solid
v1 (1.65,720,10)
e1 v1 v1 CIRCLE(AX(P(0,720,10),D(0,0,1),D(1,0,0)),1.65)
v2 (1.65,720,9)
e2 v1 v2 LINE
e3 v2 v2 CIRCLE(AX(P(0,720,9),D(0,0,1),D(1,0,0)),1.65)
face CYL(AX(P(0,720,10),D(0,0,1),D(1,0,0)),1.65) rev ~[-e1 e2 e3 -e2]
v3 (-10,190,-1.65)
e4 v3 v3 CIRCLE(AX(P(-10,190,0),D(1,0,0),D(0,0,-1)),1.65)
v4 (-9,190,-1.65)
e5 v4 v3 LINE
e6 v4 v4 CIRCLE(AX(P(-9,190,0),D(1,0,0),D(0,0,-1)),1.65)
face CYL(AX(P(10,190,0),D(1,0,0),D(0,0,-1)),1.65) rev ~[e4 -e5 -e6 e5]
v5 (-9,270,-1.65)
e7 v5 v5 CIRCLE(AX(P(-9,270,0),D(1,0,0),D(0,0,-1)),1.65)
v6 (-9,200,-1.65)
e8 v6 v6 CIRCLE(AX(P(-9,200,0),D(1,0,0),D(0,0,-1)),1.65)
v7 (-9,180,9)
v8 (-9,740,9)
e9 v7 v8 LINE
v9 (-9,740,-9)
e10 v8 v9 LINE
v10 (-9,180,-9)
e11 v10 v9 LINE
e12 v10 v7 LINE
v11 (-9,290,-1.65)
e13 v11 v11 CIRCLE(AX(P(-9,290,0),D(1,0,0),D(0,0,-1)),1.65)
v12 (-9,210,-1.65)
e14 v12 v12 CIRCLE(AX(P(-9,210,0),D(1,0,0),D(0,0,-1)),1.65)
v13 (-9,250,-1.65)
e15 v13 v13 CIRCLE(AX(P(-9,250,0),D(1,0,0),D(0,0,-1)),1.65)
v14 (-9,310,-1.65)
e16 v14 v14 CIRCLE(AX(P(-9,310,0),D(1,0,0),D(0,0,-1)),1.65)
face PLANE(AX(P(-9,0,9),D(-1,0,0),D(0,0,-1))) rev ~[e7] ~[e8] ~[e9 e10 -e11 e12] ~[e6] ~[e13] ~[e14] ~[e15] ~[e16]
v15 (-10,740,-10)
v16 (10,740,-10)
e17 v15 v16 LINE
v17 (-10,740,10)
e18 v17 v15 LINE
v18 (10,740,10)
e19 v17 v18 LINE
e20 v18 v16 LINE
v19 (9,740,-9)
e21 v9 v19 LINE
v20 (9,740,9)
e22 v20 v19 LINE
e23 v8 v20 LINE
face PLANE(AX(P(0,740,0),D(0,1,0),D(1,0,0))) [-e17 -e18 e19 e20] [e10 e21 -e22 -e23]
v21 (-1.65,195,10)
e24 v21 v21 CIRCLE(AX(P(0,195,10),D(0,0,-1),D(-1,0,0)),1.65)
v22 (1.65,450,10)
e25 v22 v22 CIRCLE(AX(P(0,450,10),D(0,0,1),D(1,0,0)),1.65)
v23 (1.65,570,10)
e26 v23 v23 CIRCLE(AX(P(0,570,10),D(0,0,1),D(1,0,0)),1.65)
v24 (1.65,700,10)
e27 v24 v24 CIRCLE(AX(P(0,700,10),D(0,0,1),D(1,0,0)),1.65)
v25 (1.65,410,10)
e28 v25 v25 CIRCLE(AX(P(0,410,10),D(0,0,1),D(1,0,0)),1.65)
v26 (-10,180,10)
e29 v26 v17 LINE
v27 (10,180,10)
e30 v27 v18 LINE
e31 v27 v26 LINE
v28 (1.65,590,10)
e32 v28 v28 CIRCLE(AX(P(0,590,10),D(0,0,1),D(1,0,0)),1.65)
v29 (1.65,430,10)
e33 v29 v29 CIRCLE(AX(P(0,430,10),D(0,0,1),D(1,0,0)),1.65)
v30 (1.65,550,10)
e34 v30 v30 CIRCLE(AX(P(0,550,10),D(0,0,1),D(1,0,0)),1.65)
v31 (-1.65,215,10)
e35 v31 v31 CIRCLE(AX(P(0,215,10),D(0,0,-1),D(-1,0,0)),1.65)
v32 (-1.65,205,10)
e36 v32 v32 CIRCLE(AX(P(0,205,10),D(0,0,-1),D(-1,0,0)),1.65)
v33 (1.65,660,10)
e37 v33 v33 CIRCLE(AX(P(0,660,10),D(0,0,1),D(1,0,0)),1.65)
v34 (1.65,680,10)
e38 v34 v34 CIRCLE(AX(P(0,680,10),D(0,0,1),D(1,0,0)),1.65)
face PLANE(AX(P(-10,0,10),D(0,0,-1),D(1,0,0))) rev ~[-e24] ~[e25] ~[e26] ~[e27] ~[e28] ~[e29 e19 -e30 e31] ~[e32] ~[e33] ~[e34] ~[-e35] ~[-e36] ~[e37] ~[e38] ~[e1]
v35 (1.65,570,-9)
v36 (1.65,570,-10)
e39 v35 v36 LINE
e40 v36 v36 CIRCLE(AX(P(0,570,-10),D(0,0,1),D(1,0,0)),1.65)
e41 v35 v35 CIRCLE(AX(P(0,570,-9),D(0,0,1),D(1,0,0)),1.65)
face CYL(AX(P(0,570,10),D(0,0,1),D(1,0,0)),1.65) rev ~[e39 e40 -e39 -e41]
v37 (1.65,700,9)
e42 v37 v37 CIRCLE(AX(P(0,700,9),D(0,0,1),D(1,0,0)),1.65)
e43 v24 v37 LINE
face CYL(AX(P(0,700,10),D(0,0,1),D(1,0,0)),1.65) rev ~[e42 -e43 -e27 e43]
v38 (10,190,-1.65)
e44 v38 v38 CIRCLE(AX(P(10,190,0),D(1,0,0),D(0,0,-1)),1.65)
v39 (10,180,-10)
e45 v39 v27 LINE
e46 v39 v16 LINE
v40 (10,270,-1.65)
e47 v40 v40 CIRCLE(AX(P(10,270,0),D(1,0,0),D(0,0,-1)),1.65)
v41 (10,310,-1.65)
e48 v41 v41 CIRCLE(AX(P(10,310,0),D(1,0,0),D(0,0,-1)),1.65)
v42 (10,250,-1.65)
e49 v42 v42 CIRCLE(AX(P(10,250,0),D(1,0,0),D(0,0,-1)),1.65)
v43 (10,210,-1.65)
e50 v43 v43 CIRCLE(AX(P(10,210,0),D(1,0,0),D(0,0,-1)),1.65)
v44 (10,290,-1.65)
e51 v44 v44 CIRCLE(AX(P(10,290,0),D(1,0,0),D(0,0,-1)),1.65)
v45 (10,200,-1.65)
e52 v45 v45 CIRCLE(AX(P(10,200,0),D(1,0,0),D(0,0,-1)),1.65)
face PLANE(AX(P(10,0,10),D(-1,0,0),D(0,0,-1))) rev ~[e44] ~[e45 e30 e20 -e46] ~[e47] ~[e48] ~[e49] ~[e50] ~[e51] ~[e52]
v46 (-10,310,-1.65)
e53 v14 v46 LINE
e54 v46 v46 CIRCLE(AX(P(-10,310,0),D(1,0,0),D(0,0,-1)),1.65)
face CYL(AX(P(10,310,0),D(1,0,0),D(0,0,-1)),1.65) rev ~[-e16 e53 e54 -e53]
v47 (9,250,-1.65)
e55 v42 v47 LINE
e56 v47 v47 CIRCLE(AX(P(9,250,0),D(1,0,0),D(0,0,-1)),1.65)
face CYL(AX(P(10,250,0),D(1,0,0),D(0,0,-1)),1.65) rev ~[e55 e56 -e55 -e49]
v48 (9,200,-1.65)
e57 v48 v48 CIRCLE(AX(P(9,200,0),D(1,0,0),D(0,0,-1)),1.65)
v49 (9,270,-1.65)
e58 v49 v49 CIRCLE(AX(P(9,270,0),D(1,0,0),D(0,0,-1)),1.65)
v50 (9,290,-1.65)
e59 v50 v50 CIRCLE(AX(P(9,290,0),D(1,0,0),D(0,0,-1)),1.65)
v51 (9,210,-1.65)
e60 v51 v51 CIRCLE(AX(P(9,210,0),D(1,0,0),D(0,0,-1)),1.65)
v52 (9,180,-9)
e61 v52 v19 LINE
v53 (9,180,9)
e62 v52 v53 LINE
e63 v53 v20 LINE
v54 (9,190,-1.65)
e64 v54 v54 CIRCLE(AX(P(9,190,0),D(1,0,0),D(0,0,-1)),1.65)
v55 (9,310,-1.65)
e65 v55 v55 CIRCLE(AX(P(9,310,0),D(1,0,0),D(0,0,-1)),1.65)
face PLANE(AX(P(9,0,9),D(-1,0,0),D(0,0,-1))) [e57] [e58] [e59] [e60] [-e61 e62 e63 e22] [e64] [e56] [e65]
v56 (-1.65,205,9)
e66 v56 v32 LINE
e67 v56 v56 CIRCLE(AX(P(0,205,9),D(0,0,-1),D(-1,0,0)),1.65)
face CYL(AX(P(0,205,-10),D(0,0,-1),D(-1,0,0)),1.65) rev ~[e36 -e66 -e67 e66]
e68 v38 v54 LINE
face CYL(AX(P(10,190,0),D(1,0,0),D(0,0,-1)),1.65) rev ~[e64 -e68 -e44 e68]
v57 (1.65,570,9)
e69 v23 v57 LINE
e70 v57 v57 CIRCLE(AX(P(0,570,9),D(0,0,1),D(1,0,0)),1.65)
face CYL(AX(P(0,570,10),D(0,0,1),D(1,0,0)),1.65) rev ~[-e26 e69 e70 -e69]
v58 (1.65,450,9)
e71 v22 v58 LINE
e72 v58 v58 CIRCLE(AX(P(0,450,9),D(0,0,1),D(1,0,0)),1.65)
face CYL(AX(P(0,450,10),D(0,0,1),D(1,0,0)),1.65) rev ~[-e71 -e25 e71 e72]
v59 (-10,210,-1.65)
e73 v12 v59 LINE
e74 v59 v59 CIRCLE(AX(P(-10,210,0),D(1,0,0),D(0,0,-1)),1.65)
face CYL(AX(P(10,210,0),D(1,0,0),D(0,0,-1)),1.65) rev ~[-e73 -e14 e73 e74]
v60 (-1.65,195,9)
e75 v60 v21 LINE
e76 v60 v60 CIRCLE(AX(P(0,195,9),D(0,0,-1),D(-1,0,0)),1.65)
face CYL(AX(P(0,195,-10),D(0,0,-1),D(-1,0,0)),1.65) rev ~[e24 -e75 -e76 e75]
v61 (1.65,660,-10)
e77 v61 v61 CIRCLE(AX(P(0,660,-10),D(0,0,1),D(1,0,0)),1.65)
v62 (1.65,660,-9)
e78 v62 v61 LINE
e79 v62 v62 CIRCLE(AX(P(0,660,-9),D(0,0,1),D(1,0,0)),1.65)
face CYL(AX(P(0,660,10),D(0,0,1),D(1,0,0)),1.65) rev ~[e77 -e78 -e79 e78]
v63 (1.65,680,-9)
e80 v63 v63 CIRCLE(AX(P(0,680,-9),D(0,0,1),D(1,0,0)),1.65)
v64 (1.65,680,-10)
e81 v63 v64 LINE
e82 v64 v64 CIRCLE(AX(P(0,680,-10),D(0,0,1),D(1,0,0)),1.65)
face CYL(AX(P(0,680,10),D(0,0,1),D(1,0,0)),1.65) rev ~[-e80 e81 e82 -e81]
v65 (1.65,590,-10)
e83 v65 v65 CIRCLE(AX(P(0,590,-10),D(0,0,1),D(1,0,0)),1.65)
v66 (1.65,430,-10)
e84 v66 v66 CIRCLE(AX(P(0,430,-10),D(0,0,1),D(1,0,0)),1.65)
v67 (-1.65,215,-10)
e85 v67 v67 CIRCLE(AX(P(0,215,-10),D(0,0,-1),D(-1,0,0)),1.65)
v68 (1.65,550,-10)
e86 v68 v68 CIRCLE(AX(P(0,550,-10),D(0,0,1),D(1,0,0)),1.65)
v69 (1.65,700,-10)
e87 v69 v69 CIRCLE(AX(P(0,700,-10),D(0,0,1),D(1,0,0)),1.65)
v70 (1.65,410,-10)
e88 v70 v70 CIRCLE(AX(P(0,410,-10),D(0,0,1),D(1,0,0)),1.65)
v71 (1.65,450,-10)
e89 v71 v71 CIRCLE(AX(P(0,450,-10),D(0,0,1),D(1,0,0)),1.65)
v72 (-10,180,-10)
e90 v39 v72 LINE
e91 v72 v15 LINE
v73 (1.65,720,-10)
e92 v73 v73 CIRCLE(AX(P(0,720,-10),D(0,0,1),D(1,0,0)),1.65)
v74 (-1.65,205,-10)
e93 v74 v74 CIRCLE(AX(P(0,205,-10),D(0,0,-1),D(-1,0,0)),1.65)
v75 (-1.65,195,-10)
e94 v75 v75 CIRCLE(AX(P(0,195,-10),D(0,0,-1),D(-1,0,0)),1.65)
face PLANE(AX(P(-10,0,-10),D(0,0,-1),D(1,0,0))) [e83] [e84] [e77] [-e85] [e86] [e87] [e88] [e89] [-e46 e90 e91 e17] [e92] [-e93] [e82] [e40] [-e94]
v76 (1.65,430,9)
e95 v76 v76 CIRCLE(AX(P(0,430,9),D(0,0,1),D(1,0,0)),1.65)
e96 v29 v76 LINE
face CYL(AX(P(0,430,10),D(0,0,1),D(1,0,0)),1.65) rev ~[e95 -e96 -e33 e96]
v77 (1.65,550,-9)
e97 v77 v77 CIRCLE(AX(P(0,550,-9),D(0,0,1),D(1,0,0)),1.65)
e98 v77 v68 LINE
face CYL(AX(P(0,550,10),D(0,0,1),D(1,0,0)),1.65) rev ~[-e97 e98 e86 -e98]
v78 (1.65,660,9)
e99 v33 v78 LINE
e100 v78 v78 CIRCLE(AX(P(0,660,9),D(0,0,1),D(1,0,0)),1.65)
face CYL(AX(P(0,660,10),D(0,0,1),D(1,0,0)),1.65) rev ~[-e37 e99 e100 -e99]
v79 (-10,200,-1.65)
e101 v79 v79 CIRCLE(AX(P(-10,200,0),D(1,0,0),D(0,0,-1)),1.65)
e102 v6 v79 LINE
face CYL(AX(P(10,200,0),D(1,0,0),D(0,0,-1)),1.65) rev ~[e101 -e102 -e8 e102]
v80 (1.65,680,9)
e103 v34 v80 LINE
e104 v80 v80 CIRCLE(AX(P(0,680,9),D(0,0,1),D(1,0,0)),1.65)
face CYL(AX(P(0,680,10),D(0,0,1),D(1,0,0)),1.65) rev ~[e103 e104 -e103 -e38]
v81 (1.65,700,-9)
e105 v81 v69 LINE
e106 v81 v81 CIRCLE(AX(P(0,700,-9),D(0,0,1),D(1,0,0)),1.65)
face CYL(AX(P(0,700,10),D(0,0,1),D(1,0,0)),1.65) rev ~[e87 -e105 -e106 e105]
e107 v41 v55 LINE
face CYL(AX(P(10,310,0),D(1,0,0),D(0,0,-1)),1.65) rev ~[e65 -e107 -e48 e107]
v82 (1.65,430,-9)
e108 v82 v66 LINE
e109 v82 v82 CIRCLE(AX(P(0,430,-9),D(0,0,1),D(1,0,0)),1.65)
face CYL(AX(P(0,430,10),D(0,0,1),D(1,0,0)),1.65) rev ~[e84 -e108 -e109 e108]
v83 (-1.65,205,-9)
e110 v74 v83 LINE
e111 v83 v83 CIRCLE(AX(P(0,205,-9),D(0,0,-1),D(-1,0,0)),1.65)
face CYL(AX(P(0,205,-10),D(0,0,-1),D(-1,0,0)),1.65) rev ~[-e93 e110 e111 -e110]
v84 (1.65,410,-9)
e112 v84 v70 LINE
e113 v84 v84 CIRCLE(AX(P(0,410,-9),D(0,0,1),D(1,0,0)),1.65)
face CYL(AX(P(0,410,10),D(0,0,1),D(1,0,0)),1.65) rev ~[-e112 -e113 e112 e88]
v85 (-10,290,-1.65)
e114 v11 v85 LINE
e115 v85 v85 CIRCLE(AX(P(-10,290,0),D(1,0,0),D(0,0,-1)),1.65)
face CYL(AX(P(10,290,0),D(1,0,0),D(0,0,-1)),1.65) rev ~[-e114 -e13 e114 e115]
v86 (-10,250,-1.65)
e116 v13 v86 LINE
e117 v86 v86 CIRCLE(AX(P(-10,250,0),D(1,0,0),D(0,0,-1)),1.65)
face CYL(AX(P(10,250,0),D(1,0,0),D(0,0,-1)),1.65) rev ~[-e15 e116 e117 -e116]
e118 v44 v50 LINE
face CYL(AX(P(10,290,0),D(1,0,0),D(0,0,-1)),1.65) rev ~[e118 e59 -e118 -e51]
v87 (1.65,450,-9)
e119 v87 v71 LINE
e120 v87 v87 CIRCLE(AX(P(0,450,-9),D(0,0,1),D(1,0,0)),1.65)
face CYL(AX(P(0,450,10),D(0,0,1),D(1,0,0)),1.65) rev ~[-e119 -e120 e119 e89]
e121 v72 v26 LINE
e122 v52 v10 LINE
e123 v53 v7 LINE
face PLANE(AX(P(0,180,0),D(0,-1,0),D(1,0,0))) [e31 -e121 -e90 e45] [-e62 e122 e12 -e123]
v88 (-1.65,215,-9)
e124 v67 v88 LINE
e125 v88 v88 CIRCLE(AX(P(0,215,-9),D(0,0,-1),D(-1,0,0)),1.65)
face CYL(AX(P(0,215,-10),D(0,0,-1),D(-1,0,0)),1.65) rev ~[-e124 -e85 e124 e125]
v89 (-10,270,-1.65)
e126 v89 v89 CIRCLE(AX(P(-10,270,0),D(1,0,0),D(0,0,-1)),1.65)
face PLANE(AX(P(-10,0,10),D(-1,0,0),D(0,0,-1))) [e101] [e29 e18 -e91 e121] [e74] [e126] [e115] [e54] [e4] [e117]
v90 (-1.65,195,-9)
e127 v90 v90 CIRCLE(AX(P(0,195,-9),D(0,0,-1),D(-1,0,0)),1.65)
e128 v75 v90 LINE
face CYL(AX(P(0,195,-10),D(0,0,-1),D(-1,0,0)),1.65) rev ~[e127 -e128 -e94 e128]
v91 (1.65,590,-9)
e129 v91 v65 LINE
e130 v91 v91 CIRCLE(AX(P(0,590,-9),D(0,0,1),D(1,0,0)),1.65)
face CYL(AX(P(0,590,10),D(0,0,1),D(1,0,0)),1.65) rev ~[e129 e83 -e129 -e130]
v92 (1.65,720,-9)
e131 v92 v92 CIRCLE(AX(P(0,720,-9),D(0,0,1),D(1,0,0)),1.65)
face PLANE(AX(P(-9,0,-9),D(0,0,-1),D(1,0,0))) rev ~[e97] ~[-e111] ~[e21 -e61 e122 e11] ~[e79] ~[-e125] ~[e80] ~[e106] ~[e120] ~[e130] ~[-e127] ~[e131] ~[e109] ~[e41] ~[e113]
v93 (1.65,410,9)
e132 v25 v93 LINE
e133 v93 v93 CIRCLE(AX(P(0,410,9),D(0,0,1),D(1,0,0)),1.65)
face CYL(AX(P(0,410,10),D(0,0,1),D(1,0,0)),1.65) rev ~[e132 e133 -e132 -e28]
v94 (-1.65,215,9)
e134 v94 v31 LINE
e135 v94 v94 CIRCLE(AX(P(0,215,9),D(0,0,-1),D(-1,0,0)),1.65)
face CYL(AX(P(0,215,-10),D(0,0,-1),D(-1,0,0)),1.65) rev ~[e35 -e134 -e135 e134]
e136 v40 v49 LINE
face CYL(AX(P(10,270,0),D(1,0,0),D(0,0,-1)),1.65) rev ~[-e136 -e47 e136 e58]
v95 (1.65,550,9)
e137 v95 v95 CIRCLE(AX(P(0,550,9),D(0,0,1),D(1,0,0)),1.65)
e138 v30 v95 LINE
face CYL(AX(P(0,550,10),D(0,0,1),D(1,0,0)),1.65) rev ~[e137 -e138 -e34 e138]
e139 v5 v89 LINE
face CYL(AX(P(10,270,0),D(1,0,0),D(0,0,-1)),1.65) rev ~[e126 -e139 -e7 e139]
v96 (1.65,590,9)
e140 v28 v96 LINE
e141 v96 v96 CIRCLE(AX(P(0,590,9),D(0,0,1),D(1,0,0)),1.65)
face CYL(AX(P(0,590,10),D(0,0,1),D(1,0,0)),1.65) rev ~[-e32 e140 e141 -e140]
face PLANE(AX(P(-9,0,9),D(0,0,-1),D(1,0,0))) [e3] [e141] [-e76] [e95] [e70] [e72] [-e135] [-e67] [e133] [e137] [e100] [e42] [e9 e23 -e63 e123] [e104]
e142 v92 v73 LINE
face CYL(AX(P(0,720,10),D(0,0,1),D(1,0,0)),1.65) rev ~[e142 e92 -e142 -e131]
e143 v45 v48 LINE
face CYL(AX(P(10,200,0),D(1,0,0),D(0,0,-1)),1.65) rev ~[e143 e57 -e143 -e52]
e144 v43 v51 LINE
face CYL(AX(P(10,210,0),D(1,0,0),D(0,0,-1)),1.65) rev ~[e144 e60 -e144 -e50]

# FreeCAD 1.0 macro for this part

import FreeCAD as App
import Part
import Sketcher


def add_polygon(sketch, points):
    """Adds a closed chain of lines whose ends are joined by coincident constraints."""
    first, n = sketch.GeometryCount, len(points)
    for a, b in zip(points, points[1:] + points[:1]):
        sketch.addGeometry(Part.LineSegment(App.Vector(*a, 0), App.Vector(*b, 0)), False)
    for i in range(n):
        sketch.addConstraint(Sketcher.Constraint("Coincident", first + i, 2, first + (i + 1) % n, 1))

doc = App.newDocument("Part")
body = doc.addObject("PartDesign::Body", "Body")

sketch1 = doc.addObject("Sketcher::SketchObject", "Sketch")
body.addObject(sketch1)
sketch1.AttachmentSupport = (doc.XZ_Plane, [""])
sketch1.MapMode = "FlatFace"
add_polygon(sketch1, [(-10, -10), (-10, 10), (10, 10), (10, -10)])
add_polygon(sketch1, [(9, 9), (-9, 9), (-9, -9), (9, -9)])
sketch1.addConstraint([
    Sketcher.Constraint("Vertical", 0),
    Sketcher.Constraint("Horizontal", 1),
    Sketcher.Constraint("Vertical", 2),
    Sketcher.Constraint("Horizontal", 3),
    Sketcher.Constraint("Horizontal", 4),
    Sketcher.Constraint("Vertical", 5),
    Sketcher.Constraint("Horizontal", 6),
    Sketcher.Constraint("Vertical", 7),
    Sketcher.Constraint("Symmetric", 0, 2, 2, 2, -1, 1),
    Sketcher.Constraint("Symmetric", 4, 2, 6, 2, -1, 1),
    Sketcher.Constraint("Equal", 3, 0),
    Sketcher.Constraint("Equal", 6, 5),
    Sketcher.Constraint("DistanceX", 1, 1, 1, 2, 20.0),
    Sketcher.Constraint("DistanceX", 4, 2, 4, 1, 18.0),
])
pad1 = doc.addObject("PartDesign::Pad", "Pad")
body.addObject(pad1)
pad1.Profile = sketch1
pad1.Length = 740
pad1.Reversed = True

sketch2 = doc.addObject("Sketcher::SketchObject", "Sketch001")
body.addObject(sketch2)
sketch2.AttachmentSupport = (doc.XY_Plane, [""])
sketch2.MapMode = "FlatFace"
sketch2.AttachmentOffset = App.Placement(App.Vector(0, 0, 10), App.Rotation())
sketch2.addGeometry([
    Part.Circle(App.Vector(0, 720, 0), App.Vector(0, 0, 1), 1.6),
    Part.Circle(App.Vector(0, 700, 0), App.Vector(0, 0, 1), 1.6),
    Part.Circle(App.Vector(0, 680, 0), App.Vector(0, 0, 1), 1.6),
    Part.Circle(App.Vector(0, 660, 0), App.Vector(0, 0, 1), 1.6),
    Part.Circle(App.Vector(0, 590, 0), App.Vector(0, 0, 1), 1.6),
    Part.Circle(App.Vector(0, 570, 0), App.Vector(0, 0, 1), 1.6),
    Part.Circle(App.Vector(0, 550, 0), App.Vector(0, 0, 1), 1.6),
    Part.Circle(App.Vector(0, 450, 0), App.Vector(0, 0, 1), 1.6),
    Part.Circle(App.Vector(0, 430, 0), App.Vector(0, 0, 1), 1.6),
    Part.Circle(App.Vector(0, 410, 0), App.Vector(0, 0, 1), 1.6),
], False)
sketch2.addConstraint([
    Sketcher.Constraint("Equal", 0, 1),
    Sketcher.Constraint("Equal", 1, 2),
    Sketcher.Constraint("Equal", 2, 3),
    Sketcher.Constraint("Equal", 3, 4),
    Sketcher.Constraint("Equal", 4, 5),
    Sketcher.Constraint("Equal", 5, 6),
    Sketcher.Constraint("Equal", 6, 7),
    Sketcher.Constraint("Equal", 7, 8),
    Sketcher.Constraint("Equal", 8, 9),
    Sketcher.Constraint("PointOnObject", 0, 3, -2),
    Sketcher.Constraint("PointOnObject", 1, 3, -2),
    Sketcher.Constraint("PointOnObject", 2, 3, -2),
    Sketcher.Constraint("PointOnObject", 3, 3, -2),
    Sketcher.Constraint("PointOnObject", 4, 3, -2),
    Sketcher.Constraint("PointOnObject", 5, 3, -2),
    Sketcher.Constraint("PointOnObject", 6, 3, -2),
    Sketcher.Constraint("PointOnObject", 7, 3, -2),
    Sketcher.Constraint("PointOnObject", 8, 3, -2),
    Sketcher.Constraint("PointOnObject", 9, 3, -2),
    Sketcher.Constraint("Diameter", 0, 3.3),
    Sketcher.Constraint("DistanceY", -1, 1, 0, 3, 720.0),
    Sketcher.Constraint("DistanceY", -1, 1, 1, 3, 700.0),
    Sketcher.Constraint("DistanceY", -1, 1, 2, 3, 680.0),
    Sketcher.Constraint("DistanceY", -1, 1, 3, 3, 660.0),
    Sketcher.Constraint("DistanceY", -1, 1, 4, 3, 590.0),
    Sketcher.Constraint("DistanceY", -1, 1, 5, 3, 570.0),
    Sketcher.Constraint("DistanceY", -1, 1, 6, 3, 550.0),
    Sketcher.Constraint("DistanceY", -1, 1, 7, 3, 450.0),
    Sketcher.Constraint("DistanceY", -1, 1, 8, 3, 430.0),
    Sketcher.Constraint("DistanceY", -1, 1, 9, 3, 410.0),
])
pocket1 = doc.addObject("PartDesign::Pocket", "Pocket")
body.addObject(pocket1)
pocket1.Profile = sketch2
pocket1.Length = 32

sketch3 = doc.addObject("Sketcher::SketchObject", "Sketch002")
body.addObject(sketch3)
sketch3.AttachmentSupport = (doc.YZ_Plane, [""])
sketch3.MapMode = "FlatFace"
sketch3.AttachmentOffset = App.Placement(App.Vector(0, 0, 10), App.Rotation())
sketch3.addGeometry([
    Part.Circle(App.Vector(250, 0, 0), App.Vector(0, 0, 1), 1.6),
    Part.Circle(App.Vector(270, 0, 0), App.Vector(0, 0, 1), 1.6),
    Part.Circle(App.Vector(290, 0, 0), App.Vector(0, 0, 1), 1.6),
    Part.Circle(App.Vector(310, 0, 0), App.Vector(0, 0, 1), 1.6),
], False)
sketch3.addConstraint([
    Sketcher.Constraint("Equal", 0, 1),
    Sketcher.Constraint("Equal", 1, 2),
    Sketcher.Constraint("Equal", 2, 3),
    Sketcher.Constraint("PointOnObject", 0, 3, -1),
    Sketcher.Constraint("PointOnObject", 1, 3, -1),
    Sketcher.Constraint("PointOnObject", 2, 3, -1),
    Sketcher.Constraint("PointOnObject", 3, 3, -1),
    Sketcher.Constraint("Diameter", 0, 3.3),
    Sketcher.Constraint("DistanceX", -1, 1, 0, 3, 250.0),
    Sketcher.Constraint("DistanceX", -1, 1, 1, 3, 270.0),
    Sketcher.Constraint("DistanceX", -1, 1, 2, 3, 290.0),
    Sketcher.Constraint("DistanceX", -1, 1, 3, 3, 310.0),
])
pocket2 = doc.addObject("PartDesign::Pocket", "Pocket001")
body.addObject(pocket2)
pocket2.Profile = sketch3
pocket2.Type = "ThroughAll"

sketch4 = doc.addObject("Sketcher::SketchObject", "Sketch003")
body.addObject(sketch4)
sketch4.AttachmentSupport = (doc.XZ_Plane, [""])
sketch4.MapMode = "FlatFace"
sketch4.addGeometry(Part.Circle(App.Vector(0, 0, 0), App.Vector(0, 0, 1), 15), False)
sketch4.addConstraint([
    Sketcher.Constraint("Coincident", 0, 3, -1, 1),
    Sketcher.Constraint("Diameter", 0, 29.132454),
])
pocket3 = doc.addObject("PartDesign::Pocket", "Pocket002")
body.addObject(pocket3)
pocket3.Profile = sketch4
pocket3.Length = 180

sketch5 = doc.addObject("Sketcher::SketchObject", "Sketch004")
body.addObject(sketch5)
sketch5.AttachmentSupport = (doc.YZ_Plane, [""])
sketch5.MapMode = "FlatFace"
sketch5.AttachmentOffset = App.Placement(App.Vector(0, 0, 10), App.Rotation())
sketch5.addGeometry([
    Part.Circle(App.Vector(190, 0, 0), App.Vector(0, 0, 1), 1.6),
    Part.Circle(App.Vector(200, 0, 0), App.Vector(0, 0, 1), 1.6),
    Part.Circle(App.Vector(210, 0, 0), App.Vector(0, 0, 1), 1.6),
], False)
sketch5.addConstraint([
    Sketcher.Constraint("Equal", 0, 1),
    Sketcher.Constraint("Equal", 1, 2),
    Sketcher.Constraint("PointOnObject", 0, 3, -1),
    Sketcher.Constraint("PointOnObject", 1, 3, -1),
    Sketcher.Constraint("PointOnObject", 2, 3, -1),
    Sketcher.Constraint("Diameter", 0, 3.3),
    Sketcher.Constraint("DistanceX", -1, 1, 0, 3, 190.0),
    Sketcher.Constraint("DistanceX", -1, 1, 1, 3, 200.0),
    Sketcher.Constraint("DistanceX", -1, 1, 2, 3, 210.0),
])
pocket4 = doc.addObject("PartDesign::Pocket", "Pocket003")
body.addObject(pocket4)
pocket4.Profile = sketch5
pocket4.Length = 30

sketch6 = doc.addObject("Sketcher::SketchObject", "Sketch005")
body.addObject(sketch6)
sketch6.AttachmentSupport = (doc.XY_Plane, [""])
sketch6.MapMode = "FlatFace"
sketch6.AttachmentOffset = App.Placement(App.Vector(0, 0, -10), App.Rotation())
sketch6.addGeometry([
    Part.Circle(App.Vector(0, 195, 0), App.Vector(0, 0, 1), 1.6),
    Part.Circle(App.Vector(0, 205, 0), App.Vector(0, 0, 1), 1.6),
    Part.Circle(App.Vector(0, 215, 0), App.Vector(0, 0, 1), 1.6),
], False)
sketch6.addConstraint([
    Sketcher.Constraint("Equal", 0, 1),
    Sketcher.Constraint("Equal", 1, 2),
    Sketcher.Constraint("PointOnObject", 0, 3, -2),
    Sketcher.Constraint("PointOnObject", 1, 3, -2),
    Sketcher.Constraint("PointOnObject", 2, 3, -2),
    Sketcher.Constraint("Diameter", 0, 3.3),
    Sketcher.Constraint("DistanceY", -1, 1, 0, 3, 195.0),
    Sketcher.Constraint("DistanceY", -1, 1, 1, 3, 205.0),
    Sketcher.Constraint("DistanceY", -1, 1, 2, 3, 215.0),
])
pocket5 = doc.addObject("PartDesign::Pocket", "Pocket004")
body.addObject(pocket5)
pocket5.Profile = sketch6
pocket5.Type = "ThroughAll"
pocket5.Reversed = True

doc.recompute()
